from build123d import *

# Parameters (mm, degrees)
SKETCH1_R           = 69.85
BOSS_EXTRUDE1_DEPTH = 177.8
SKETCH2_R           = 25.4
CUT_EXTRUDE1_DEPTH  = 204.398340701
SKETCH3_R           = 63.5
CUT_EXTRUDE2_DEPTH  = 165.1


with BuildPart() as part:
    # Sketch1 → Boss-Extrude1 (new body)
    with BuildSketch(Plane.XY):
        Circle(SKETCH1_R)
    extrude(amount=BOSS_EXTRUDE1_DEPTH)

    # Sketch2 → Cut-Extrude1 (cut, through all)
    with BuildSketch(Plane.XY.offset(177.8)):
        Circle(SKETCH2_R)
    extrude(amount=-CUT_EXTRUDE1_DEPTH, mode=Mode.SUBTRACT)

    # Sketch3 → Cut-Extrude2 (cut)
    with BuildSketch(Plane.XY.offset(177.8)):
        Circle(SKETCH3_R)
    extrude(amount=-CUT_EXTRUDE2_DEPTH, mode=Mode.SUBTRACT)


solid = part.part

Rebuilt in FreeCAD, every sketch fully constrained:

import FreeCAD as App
import Part
import Sketcher
Q = App.Units.Quantity

doc = App.newDocument("Part")
body = doc.addObject("PartDesign::Body", "Body")

# Sketch on XY plane
sketch1 = body.newObject("Sketcher::SketchObject", "Sketch")
sketch1.AttachmentSupport = (doc.getObject("XY_Plane"), [""])
sketch1.MapMode = "FlatFace"
sketch1.addGeometry(Part.Circle(App.Vector(0, 0, 0), App.Vector(0, 0, 1), 70), False)
sketch1.addConstraint(Sketcher.Constraint("Coincident", 0, 3, -1, 1))
sketch1.addConstraint(Sketcher.Constraint("Diameter", 0, Q("5.5 in")))
pad1 = body.newObject("PartDesign::Pad", "Pad")
pad1.Profile = sketch1
pad1.Length = Q("7 in")

# Sketch on XY plane
sketch2 = body.newObject("Sketcher::SketchObject", "Sketch001")
sketch2.AttachmentSupport = (doc.getObject("XY_Plane"), [""])
sketch2.MapMode = "FlatFace"
sketch2.AttachmentOffset = App.Placement(App.Vector(0, 0, 7 * 25.4), App.Rotation())
sketch2.addGeometry(Part.Circle(App.Vector(0, 0, 0), App.Vector(0, 0, 1), 25), False)
sketch2.addConstraint(Sketcher.Constraint("Coincident", 0, 3, -1, 1))
sketch2.addConstraint(Sketcher.Constraint("Diameter", 0, Q("2 in")))
pocket1 = body.newObject("PartDesign::Pocket", "Pocket")
pocket1.Profile = sketch2
pocket1.Type = "ThroughAll"

# Sketch on XY plane
sketch3 = body.newObject("Sketcher::SketchObject", "Sketch002")
sketch3.AttachmentSupport = (doc.getObject("XY_Plane"), [""])
sketch3.MapMode = "FlatFace"
sketch3.AttachmentOffset = App.Placement(App.Vector(0, 0, 7 * 25.4), App.Rotation())
sketch3.addGeometry(Part.Circle(App.Vector(0, 0, 0), App.Vector(0, 0, 1), 64), False)
sketch3.addConstraint(Sketcher.Constraint("Coincident", 0, 3, -1, 1))
sketch3.addConstraint(Sketcher.Constraint("Diameter", 0, Q("5 in")))
pocket2 = body.newObject("PartDesign::Pocket", "Pocket001")
pocket2.Profile = sketch3
pocket2.Length = Q("6.5 in")

doc.recompute()
